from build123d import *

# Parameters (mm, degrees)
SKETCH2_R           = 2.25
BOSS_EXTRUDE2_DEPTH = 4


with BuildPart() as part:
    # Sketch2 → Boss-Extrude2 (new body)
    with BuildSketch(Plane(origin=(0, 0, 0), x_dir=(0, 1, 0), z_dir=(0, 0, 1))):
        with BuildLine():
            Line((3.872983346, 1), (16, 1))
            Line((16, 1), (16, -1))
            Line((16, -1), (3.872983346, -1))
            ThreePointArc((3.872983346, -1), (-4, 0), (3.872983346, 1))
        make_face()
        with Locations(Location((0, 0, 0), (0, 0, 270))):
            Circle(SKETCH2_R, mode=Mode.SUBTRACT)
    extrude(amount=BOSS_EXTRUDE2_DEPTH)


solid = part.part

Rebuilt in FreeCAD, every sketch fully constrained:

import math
import FreeCAD as App
import Part
import Sketcher

V = App.Vector
Q = App.Units.Quantity

doc = App.newDocument("Part")
params = doc.addObject("Spreadsheet::Sheet", "Params")
for row, (alias, value) in enumerate([
    ("sketch1_radius", "4 mm"),
    ("sketch1_diameter", "4.5 mm"),
    ("sketch1_width", "2 mm"),
    ("pad1_length", "4 mm"),
], start=1):
    params.set(f"A{row}", alias)
    params.set(f"B{row}", "=" + value)
    params.setAlias(f"B{row}", alias)

body = doc.addObject("PartDesign::Body", "Body")

# Sketch on XY plane
sketch1 = body.newObject("Sketcher::SketchObject", "Sketch")
sketch1.AttachmentSupport = (doc.getObject("XY_Plane"), [""])
sketch1.MapMode = "FlatFace"
sketch1.addGeometry([
    Part.LineSegment(V(-1, 16, 0), V(-1, 3.9, 0)),  # 0
    Part.ArcOfCircle(Part.Circle(V(0, 0, 0), V(0, 0, 1), 4), math.radians(104), math.radians(436)),  # 1
    Part.LineSegment(V(1, 3.9, 0), V(1, 16, 0)),  # 2
    Part.LineSegment(V(1, 16, 0), V(-1, 16, 0)),  # 3
    Part.Circle(V(0, 0, 0), V(0, 0, 1), 2.2),  # 4
], False)
sketch1.addConstraint([
    Sketcher.Constraint("Coincident", 0, 2, 1, 1),
    Sketcher.Constraint("Coincident", 1, 2, 2, 1),
    Sketcher.Constraint("Coincident", 2, 2, 3, 1),
    Sketcher.Constraint("Coincident", 3, 2, 0, 1),
    Sketcher.Constraint("Vertical", 0),
    Sketcher.Constraint("Vertical", 2),
    Sketcher.Constraint("Horizontal", 3),
    Sketcher.Constraint("Coincident", 1, 3, -1, 1),
    Sketcher.Constraint("Coincident", 4, 3, -1, 1),
    Sketcher.Constraint("Horizontal", 0, 2, 1, 2),
    Sketcher.Constraint("Radius", 1, Q("4 mm")),
    Sketcher.Constraint("Diameter", 4, Q("4.5 mm")),
    Sketcher.Constraint("DistanceX", 3, 2, 3, 1, Q("2 mm")),
    Sketcher.Constraint("DistanceY", -1, 1, 2, 2, Q("16 mm")),
])
sketch1.setExpression("Constraints[10]", "Params.sketch1_radius")
sketch1.setExpression("Constraints[11]", "Params.sketch1_diameter")
sketch1.setExpression("Constraints[12]", "Params.sketch1_width")
pad1 = body.newObject("PartDesign::Pad", "Pad")
pad1.Profile = sketch1
pad1.setExpression("Length", "Params.pad1_length")

doc.recompute()
